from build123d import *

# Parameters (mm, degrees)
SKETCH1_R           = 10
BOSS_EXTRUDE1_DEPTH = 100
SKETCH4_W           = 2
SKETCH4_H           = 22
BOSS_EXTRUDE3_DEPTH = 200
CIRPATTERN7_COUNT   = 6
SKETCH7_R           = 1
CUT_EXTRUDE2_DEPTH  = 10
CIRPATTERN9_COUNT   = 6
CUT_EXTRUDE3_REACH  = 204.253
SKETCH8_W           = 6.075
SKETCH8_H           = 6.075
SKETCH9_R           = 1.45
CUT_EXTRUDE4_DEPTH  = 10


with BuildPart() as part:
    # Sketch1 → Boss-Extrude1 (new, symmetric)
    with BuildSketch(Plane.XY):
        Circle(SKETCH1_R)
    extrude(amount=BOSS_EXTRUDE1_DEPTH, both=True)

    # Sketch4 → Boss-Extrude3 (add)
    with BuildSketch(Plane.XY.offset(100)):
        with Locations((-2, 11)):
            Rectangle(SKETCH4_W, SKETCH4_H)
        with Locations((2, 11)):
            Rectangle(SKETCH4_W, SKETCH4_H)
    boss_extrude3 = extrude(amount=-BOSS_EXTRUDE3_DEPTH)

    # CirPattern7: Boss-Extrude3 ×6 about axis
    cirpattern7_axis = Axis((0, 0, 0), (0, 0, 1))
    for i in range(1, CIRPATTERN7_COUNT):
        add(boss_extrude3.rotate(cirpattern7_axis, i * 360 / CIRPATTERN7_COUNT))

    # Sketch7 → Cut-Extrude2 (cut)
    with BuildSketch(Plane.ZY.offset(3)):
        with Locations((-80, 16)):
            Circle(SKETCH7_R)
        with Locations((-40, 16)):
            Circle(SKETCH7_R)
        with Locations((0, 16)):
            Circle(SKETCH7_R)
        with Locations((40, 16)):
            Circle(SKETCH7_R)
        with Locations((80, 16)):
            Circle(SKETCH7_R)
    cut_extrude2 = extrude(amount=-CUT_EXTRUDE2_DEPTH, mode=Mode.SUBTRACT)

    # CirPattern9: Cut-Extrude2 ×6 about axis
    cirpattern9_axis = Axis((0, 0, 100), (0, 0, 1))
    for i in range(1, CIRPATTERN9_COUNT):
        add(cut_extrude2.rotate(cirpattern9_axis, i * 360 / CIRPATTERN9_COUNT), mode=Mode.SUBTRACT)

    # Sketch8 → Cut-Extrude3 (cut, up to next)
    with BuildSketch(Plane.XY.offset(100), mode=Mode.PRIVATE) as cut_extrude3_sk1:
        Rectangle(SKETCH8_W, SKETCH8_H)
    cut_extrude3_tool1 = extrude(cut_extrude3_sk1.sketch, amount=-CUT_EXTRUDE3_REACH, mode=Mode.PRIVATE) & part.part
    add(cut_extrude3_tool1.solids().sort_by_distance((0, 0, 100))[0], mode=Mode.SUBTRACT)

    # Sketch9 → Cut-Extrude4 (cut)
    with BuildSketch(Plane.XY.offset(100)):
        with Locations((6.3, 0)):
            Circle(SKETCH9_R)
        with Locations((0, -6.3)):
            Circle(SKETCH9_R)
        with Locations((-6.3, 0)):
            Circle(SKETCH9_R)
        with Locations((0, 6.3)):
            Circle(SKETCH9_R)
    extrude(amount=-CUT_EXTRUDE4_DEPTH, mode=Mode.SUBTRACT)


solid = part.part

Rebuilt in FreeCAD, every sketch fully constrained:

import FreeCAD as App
import Part
import Sketcher
from FreeCAD import Vector

doc = App.newDocument("Part")
body = doc.addObject("PartDesign::Body", "Body")

sketch1 = doc.addObject("Sketcher::SketchObject", "Sketch")
body.addObject(sketch1)
sketch1.AttachmentSupport = (doc.XY_Plane, [""])
sketch1.MapMode = "FlatFace"
sketch1.addGeometry(Part.Circle(Vector(0, 0, 0), Vector(0, 0, 1), 10), False)
sketch1.addConstraint(Sketcher.Constraint("Coincident", 0, 3, -1, 1))
sketch1.addConstraint(Sketcher.Constraint("Diameter", 0, 20.0))
pad1 = doc.addObject("PartDesign::Pad", "Pad")
body.addObject(pad1)
pad1.Profile = sketch1
pad1.Length = 200
pad1.Midplane = True

sketch2 = doc.addObject("Sketcher::SketchObject", "Sketch001")
body.addObject(sketch2)
sketch2.AttachmentSupport = (doc.XY_Plane, [""])
sketch2.MapMode = "FlatFace"
sketch2.AttachmentOffset = App.Placement(Vector(0, 0, 100), App.Rotation())
sketch2.addGeometry(Part.LineSegment(Vector(-3, 22, 0), Vector(-3, 0, 0)), False)
sketch2.addGeometry(Part.LineSegment(Vector(-3, 0, 0), Vector(-1, 0, 0)), False)
sketch2.addGeometry(Part.LineSegment(Vector(-1, 0, 0), Vector(-1, 22, 0)), False)
sketch2.addGeometry(Part.LineSegment(Vector(-1, 22, 0), Vector(-3, 22, 0)), False)
sketch2.addGeometry(Part.LineSegment(Vector(1, 22, 0), Vector(1, 0, 0)), False)
sketch2.addGeometry(Part.LineSegment(Vector(1, 0, 0), Vector(3, 0, 0)), False)
sketch2.addGeometry(Part.LineSegment(Vector(3, 0, 0), Vector(3, 22, 0)), False)
sketch2.addGeometry(Part.LineSegment(Vector(3, 22, 0), Vector(1, 22, 0)), False)
sketch2.addConstraint(Sketcher.Constraint("Coincident", 0, 2, 1, 1))
sketch2.addConstraint(Sketcher.Constraint("Coincident", 1, 2, 2, 1))
sketch2.addConstraint(Sketcher.Constraint("Coincident", 2, 2, 3, 1))
sketch2.addConstraint(Sketcher.Constraint("Coincident", 3, 2, 0, 1))
sketch2.addConstraint(Sketcher.Constraint("Coincident", 4, 2, 5, 1))
sketch2.addConstraint(Sketcher.Constraint("Coincident", 5, 2, 6, 1))
sketch2.addConstraint(Sketcher.Constraint("Coincident", 6, 2, 7, 1))
sketch2.addConstraint(Sketcher.Constraint("Coincident", 7, 2, 4, 1))
sketch2.addConstraint(Sketcher.Constraint("Vertical", 0))
sketch2.addConstraint(Sketcher.Constraint("Horizontal", 1))
sketch2.addConstraint(Sketcher.Constraint("Vertical", 2))
sketch2.addConstraint(Sketcher.Constraint("Horizontal", 3))
sketch2.addConstraint(Sketcher.Constraint("Vertical", 4))
sketch2.addConstraint(Sketcher.Constraint("Horizontal", 5))
sketch2.addConstraint(Sketcher.Constraint("Vertical", 6))
sketch2.addConstraint(Sketcher.Constraint("Horizontal", 7))
sketch2.addConstraint(Sketcher.Constraint("Symmetric", 1, 2, 4, 2, -1, 1))
sketch2.addConstraint(Sketcher.Constraint("Symmetric", 0, 2, 5, 2, -2))
sketch2.addConstraint(Sketcher.Constraint("Horizontal", 3, 2, 6, 2))
sketch2.addConstraint(Sketcher.Constraint("DistanceX", 1, 1, 1, 2, 2.0))
sketch2.addConstraint(Sketcher.Constraint("DistanceY", 0, 2, 0, 1, 22.0))
sketch2.addConstraint(Sketcher.Constraint("DistanceX", 0, 2, -1, 1, 3.0))
pad2 = doc.addObject("PartDesign::Pad", "Pad001")
body.addObject(pad2)
pad2.Profile = sketch2
pad2.Length = 200
pad2.Reversed = True
doc.recompute()

polarpattern = doc.addObject("PartDesign::PolarPattern", "PolarPattern")
body.addObject(polarpattern)
polarpattern.Originals = [pad2]
polarpattern.Axis = (doc.Z_Axis, [""])
polarpattern.Angle = 360
polarpattern.Occurrences = 6
body.Tip = polarpattern

sketch3 = doc.addObject("Sketcher::SketchObject", "Sketch002")
body.addObject(sketch3)
sketch3.AttachmentSupport = (doc.YZ_Plane, [""])
sketch3.MapMode = "FlatFace"
sketch3.AttachmentOffset = App.Placement(Vector(0, 0, -3), App.Rotation())
sketch3.addGeometry(Part.Circle(Vector(16, -80, 0), Vector(0, 0, 1), 1), False)
sketch3.addGeometry(Part.Circle(Vector(16, -40, 0), Vector(0, 0, 1), 1), False)
sketch3.addGeometry(Part.Circle(Vector(16, 0, 0), Vector(0, 0, 1), 1), False)
sketch3.addGeometry(Part.Circle(Vector(16, 40, 0), Vector(0, 0, 1), 1), False)
sketch3.addGeometry(Part.Circle(Vector(16, 80, 0), Vector(0, 0, 1), 1), False)
sketch3.addConstraint(Sketcher.Constraint("Equal", 0, 1))
sketch3.addConstraint(Sketcher.Constraint("Equal", 1, 2))
sketch3.addConstraint(Sketcher.Constraint("Equal", 2, 3))
sketch3.addConstraint(Sketcher.Constraint("Equal", 3, 4))
sketch3.addConstraint(Sketcher.Constraint("Symmetric", 1, 3, 3, 3, -1))
sketch3.addConstraint(Sketcher.Constraint("Symmetric", 0, 3, 4, 3, -1))
sketch3.addConstraint(Sketcher.Constraint("PointOnObject", 2, 3, -1))
sketch3.addConstraint(Sketcher.Constraint("Vertical", 0, 3, 1, 3))
sketch3.addConstraint(Sketcher.Constraint("Vertical", 1, 3, 2, 3))
sketch3.addConstraint(Sketcher.Constraint("Diameter", 0, 2.0))
sketch3.addConstraint(Sketcher.Constraint("DistanceX", -1, 1, 0, 3, 16.0))
sketch3.addConstraint(Sketcher.Constraint("DistanceY", 0, 3, -1, 1, 80.0))
sketch3.addConstraint(Sketcher.Constraint("DistanceY", 1, 3, -1, 1, 40.0))
pocket1 = doc.addObject("PartDesign::Pocket", "Pocket")
body.addObject(pocket1)
pocket1.Profile = sketch3
pocket1.Length = 10
pocket1.Reversed = True
doc.recompute()

polarpattern2 = doc.addObject("PartDesign::PolarPattern", "PolarPattern001")
body.addObject(polarpattern2)
polarpattern2.Originals = [pocket1]
polarpattern2.Axis = (doc.Z_Axis, [""])
polarpattern2.Angle = 360
polarpattern2.Occurrences = 6
body.Tip = polarpattern2

sketch4 = doc.addObject("Sketcher::SketchObject", "Sketch003")
body.addObject(sketch4)
sketch4.AttachmentSupport = (doc.XY_Plane, [""])
sketch4.MapMode = "FlatFace"
sketch4.AttachmentOffset = App.Placement(Vector(0, 0, 100), App.Rotation())
sketch4.addGeometry(Part.LineSegment(Vector(-3, 3, 0), Vector(-3, -3, 0)), False)
sketch4.addGeometry(Part.LineSegment(Vector(-3, -3, 0), Vector(3, -3, 0)), False)
sketch4.addGeometry(Part.LineSegment(Vector(3, -3, 0), Vector(3, 3, 0)), False)
sketch4.addGeometry(Part.LineSegment(Vector(3, 3, 0), Vector(-3, 3, 0)), False)
sketch4.addConstraint(Sketcher.Constraint("Coincident", 0, 2, 1, 1))
sketch4.addConstraint(Sketcher.Constraint("Coincident", 1, 2, 2, 1))
sketch4.addConstraint(Sketcher.Constraint("Coincident", 2, 2, 3, 1))
sketch4.addConstraint(Sketcher.Constraint("Coincident", 3, 2, 0, 1))
sketch4.addConstraint(Sketcher.Constraint("Vertical", 0))
sketch4.addConstraint(Sketcher.Constraint("Horizontal", 1))
sketch4.addConstraint(Sketcher.Constraint("Vertical", 2))
sketch4.addConstraint(Sketcher.Constraint("Horizontal", 3))
sketch4.addConstraint(Sketcher.Constraint("Symmetric", 0, 2, 2, 2, -1, 1))
sketch4.addConstraint(Sketcher.Constraint("Equal", 3, 0))
sketch4.addConstraint(Sketcher.Constraint("DistanceX", 1, 1, 1, 2, 6.075))
pocket2 = doc.addObject("PartDesign::Pocket", "Pocket001")
body.addObject(pocket2)
pocket2.Profile = sketch4
pocket2.Type = "UpToFirst"

sketch5 = doc.addObject("Sketcher::SketchObject", "Sketch004")
body.addObject(sketch5)
sketch5.AttachmentSupport = (doc.XY_Plane, [""])
sketch5.MapMode = "FlatFace"
sketch5.AttachmentOffset = App.Placement(Vector(0, 0, 100), App.Rotation())
sketch5.addGeometry(Part.Circle(Vector(6.3, 0, 0), Vector(0, 0, 1), 1.4), False)
sketch5.addGeometry(Part.Circle(Vector(0, -6.3, 0), Vector(0, 0, 1), 1.4), False)
sketch5.addGeometry(Part.Circle(Vector(-6.3, 0, 0), Vector(0, 0, 1), 1.4), False)
sketch5.addGeometry(Part.Circle(Vector(0, 6.3, 0), Vector(0, 0, 1), 1.4), False)
sketch5.addConstraint(Sketcher.Constraint("Equal", 0, 1))
sketch5.addConstraint(Sketcher.Constraint("Equal", 1, 2))
sketch5.addConstraint(Sketcher.Constraint("Equal", 2, 3))
sketch5.addConstraint(Sketcher.Constraint("Symmetric", 0, 3, 2, 3, -1, 1))
sketch5.addConstraint(Sketcher.Constraint("Symmetric", 1, 3, 3, 3, -1, 1))
sketch5.addConstraint(Sketcher.Constraint("PointOnObject", 0, 3, -1))
sketch5.addConstraint(Sketcher.Constraint("PointOnObject", 1, 3, -2))
sketch5.addConstraint(Sketcher.Constraint("Diameter", 0, 2.9))
sketch5.addConstraint(Sketcher.Constraint("DistanceX", -1, 1, 0, 3, 6.3))
sketch5.addConstraint(Sketcher.Constraint("DistanceY", 1, 3, -1, 1, 6.3))
pocket3 = doc.addObject("PartDesign::Pocket", "Pocket002")
body.addObject(pocket3)
pocket3.Profile = sketch5
pocket3.Length = 10

doc.recompute()
